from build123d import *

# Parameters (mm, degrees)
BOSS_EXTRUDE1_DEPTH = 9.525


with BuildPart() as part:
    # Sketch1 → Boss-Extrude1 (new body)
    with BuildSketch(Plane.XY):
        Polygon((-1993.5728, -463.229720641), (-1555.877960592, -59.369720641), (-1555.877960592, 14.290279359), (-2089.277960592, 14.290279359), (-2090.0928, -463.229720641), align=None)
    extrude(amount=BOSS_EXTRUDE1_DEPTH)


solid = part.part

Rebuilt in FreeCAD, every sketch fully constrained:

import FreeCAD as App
import Part
import Sketcher
Q = App.Units.Quantity


def add_polygon(sketch, points):
    """Adds a closed chain of lines whose ends are joined by coincident constraints."""
    first, n = sketch.GeometryCount, len(points)
    for a, b in zip(points, points[1:] + points[:1]):
        sketch.addGeometry(Part.LineSegment(App.Vector(*a, 0), App.Vector(*b, 0)), False)
    for i in range(n):
        sketch.addConstraint(Sketcher.Constraint("Coincident", first + i, 2, first + (i + 1) % n, 1))

doc = App.newDocument("Part")
params = doc.addObject("Spreadsheet::Sheet", "Params")
for row, (alias, value) in enumerate([
    ("sketch1_width", "21 in"),
    ("sketch1_width2", "3.8 in"),
    ("sketch1_height", "2.9 in"),
    ("pad1_length", "0.375 in"),
], start=1):
    params.set(f"A{row}", alias)
    params.set(f"B{row}", "=" + value)
    params.setAlias(f"B{row}", alias)

body = doc.addObject("PartDesign::Body", "Body")

# Sketch on XY plane
sketch1 = body.newObject("Sketcher::SketchObject", "Sketch")
sketch1.AttachmentSupport = (doc.getObject("XY_Plane"), [""])
sketch1.MapMode = "FlatFace"
add_polygon(sketch1, [(-1994, -463), (-1556, -59), (-1556, 14), (-2089, 14), (-2090, -463)])  # lines 0-4
sketch1.addConstraint(Sketcher.Constraint("Vertical", 1))
sketch1.addConstraint(Sketcher.Constraint("Horizontal", 2))
sketch1.addConstraint(Sketcher.Constraint("Horizontal", 4))
sketch1.addConstraint(Sketcher.Constraint("DistanceX", 2, 2, 2, 1, Q("21 in")))
sketch1.addConstraint(Sketcher.Constraint("DistanceX", 4, 1, 4, 2, Q("3.8 in")))
sketch1.addConstraint(Sketcher.Constraint("DistanceY", 1, 1, 1, 2, Q("2.9 in")))
sketch1.addConstraint(Sketcher.Constraint("DistanceY", 3, 2, 2, 2, Q("18.8 in")))
sketch1.addConstraint(Sketcher.Constraint("DistanceX", 3, 2, -1, 1, Q("2090.0928 mm")))
sketch1.addConstraint(Sketcher.Constraint("Distance", 0, Q("595.54989 mm")))
sketch1.addConstraint(Sketcher.Constraint("DistanceY", 0, 2, -1, 1, Q("59.369721 mm")))
sketch1.setExpression("Constraints[8]", "Params.sketch1_width")
sketch1.setExpression("Constraints[9]", "Params.sketch1_width2")
sketch1.setExpression("Constraints[10]", "Params.sketch1_height")
pad1 = body.newObject("PartDesign::Pad", "Pad")
pad1.Profile = sketch1
pad1.setExpression("Length", "Params.pad1_length")

doc.recompute()
